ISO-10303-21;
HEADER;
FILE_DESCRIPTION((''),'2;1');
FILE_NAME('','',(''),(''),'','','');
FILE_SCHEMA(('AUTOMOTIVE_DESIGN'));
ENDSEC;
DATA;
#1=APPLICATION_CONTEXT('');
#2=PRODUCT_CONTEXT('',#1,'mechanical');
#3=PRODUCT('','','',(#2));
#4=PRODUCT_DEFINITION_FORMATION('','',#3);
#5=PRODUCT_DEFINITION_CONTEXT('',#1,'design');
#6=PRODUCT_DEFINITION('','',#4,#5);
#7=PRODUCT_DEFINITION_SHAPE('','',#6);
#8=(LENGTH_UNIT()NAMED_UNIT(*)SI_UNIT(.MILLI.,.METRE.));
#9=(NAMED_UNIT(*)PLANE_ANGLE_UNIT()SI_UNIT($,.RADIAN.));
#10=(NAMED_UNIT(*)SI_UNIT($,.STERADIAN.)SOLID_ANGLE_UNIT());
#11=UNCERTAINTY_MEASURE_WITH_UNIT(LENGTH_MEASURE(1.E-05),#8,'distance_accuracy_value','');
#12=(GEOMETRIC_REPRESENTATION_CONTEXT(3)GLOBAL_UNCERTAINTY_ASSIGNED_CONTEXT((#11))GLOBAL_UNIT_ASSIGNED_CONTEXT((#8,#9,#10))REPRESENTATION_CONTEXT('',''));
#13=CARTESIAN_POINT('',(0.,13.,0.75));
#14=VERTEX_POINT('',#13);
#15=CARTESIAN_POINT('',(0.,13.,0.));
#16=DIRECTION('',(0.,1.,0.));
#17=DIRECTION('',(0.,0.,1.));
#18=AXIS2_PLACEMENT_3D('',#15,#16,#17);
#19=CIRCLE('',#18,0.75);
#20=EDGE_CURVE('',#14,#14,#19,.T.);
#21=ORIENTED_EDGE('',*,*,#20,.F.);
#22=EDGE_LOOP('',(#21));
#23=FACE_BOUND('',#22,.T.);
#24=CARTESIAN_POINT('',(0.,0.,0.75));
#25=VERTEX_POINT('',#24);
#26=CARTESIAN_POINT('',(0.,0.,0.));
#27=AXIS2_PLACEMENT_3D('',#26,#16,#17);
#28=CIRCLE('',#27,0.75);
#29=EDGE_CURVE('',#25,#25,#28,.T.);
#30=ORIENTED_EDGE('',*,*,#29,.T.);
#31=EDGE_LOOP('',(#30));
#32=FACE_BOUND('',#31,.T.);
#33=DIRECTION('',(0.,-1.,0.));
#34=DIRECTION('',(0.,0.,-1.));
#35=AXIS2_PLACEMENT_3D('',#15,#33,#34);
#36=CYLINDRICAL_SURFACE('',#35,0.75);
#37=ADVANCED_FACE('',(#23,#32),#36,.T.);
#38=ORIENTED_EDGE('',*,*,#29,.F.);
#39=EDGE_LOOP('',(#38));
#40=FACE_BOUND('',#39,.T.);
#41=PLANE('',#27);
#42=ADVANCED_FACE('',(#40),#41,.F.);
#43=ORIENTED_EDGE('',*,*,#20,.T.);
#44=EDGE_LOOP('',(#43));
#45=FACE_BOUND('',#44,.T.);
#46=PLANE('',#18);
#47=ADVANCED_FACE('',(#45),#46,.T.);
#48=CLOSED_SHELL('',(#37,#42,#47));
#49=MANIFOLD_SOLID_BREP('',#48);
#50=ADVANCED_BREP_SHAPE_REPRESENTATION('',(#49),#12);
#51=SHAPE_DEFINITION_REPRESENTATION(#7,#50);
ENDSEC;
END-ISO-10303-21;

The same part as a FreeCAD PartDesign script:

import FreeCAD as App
import Part
import Sketcher

V = App.Vector
Q = App.Units.Quantity

doc = App.newDocument("Part")
body = doc.addObject("PartDesign::Body", "Body")

# Sketch on XZ plane
sketch1 = body.newObject("Sketcher::SketchObject", "Sketch")
sketch1.AttachmentSupport = (doc.getObject("XZ_Plane"), [""])
sketch1.MapMode = "FlatFace"
sketch1.addGeometry(Part.Circle(V(0, 0, 0), V(0, 0, 1), 0.8), False)
sketch1.addConstraint([
    Sketcher.Constraint("Coincident", 0, 3, -1, 1),
    Sketcher.Constraint("Diameter", 0, Q("1.5 mm")),
])
pad1 = body.newObject("PartDesign::Pad", "Pad")
pad1.Profile = sketch1
pad1.Length = 13
pad1.Reversed = True

doc.recompute()
